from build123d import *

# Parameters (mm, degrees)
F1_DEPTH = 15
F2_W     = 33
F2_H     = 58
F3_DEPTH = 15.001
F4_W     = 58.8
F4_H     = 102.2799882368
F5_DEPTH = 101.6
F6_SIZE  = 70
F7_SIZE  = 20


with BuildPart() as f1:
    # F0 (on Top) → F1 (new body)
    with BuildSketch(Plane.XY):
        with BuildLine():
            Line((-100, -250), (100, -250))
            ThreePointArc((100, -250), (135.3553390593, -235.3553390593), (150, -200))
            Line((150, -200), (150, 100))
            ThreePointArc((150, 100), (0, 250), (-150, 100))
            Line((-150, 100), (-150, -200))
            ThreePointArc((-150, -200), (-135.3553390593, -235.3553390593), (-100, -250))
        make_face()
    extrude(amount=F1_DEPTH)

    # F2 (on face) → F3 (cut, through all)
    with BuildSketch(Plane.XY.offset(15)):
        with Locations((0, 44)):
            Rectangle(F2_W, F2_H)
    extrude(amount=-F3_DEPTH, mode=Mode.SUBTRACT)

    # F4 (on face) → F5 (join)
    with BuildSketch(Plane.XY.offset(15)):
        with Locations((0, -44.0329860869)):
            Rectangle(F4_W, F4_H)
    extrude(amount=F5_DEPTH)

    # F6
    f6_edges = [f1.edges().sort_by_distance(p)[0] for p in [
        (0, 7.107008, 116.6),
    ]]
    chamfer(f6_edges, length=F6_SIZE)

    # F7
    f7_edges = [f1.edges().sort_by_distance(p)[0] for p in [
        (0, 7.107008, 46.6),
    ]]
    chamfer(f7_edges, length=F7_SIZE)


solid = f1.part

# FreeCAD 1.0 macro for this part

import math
import FreeCAD as App
import Part
import Sketcher

V = App.Vector
Q = App.Units.Quantity


def edges_at(feature, points):
    """Names of the edges that pass closest to the given points."""
    edges = feature.Shape.Edges
    near = lambda p: min(range(len(edges)), key=lambda i: edges[i].distToShape(Part.Vertex(*p))[0])
    return sorted({f"Edge{near(p) + 1}" for p in points})

doc = App.newDocument("Part")
body = doc.addObject("PartDesign::Body", "Body")

# Sketch on XY plane
sketch1 = doc.addObject("Sketcher::SketchObject", "Sketch")
body.addObject(sketch1)
sketch1.AttachmentSupport = (doc.XY_Plane, [""])
sketch1.MapMode = "FlatFace"
sketch1.addGeometry(Part.LineSegment(V(-100, -250, 0), V(100, -250, 0)), False)
sketch1.addGeometry(Part.ArcOfCircle(Part.Circle(V(100, -200, 0), V(0, 0, 1), 50), math.radians(-90), math.radians(0)), False)
sketch1.addGeometry(Part.LineSegment(V(150, -200, 0), V(150, 100, 0)), False)
sketch1.addGeometry(Part.ArcOfCircle(Part.Circle(V(0, 100, 0), V(0, 0, 1), 150), math.radians(0), math.radians(180)), False)
sketch1.addGeometry(Part.LineSegment(V(-150, 100, 0), V(-150, -200, 0)), False)
sketch1.addGeometry(Part.ArcOfCircle(Part.Circle(V(-100, -200, 0), V(0, 0, 1), 50), math.radians(180), math.radians(270)), False)
sketch1.addConstraint(Sketcher.Constraint("Tangent", 0, 2, 1, 1))
sketch1.addConstraint(Sketcher.Constraint("Tangent", 1, 2, 2, 1))
sketch1.addConstraint(Sketcher.Constraint("Tangent", 2, 2, 3, 1))
sketch1.addConstraint(Sketcher.Constraint("Tangent", 3, 2, 4, 1))
sketch1.addConstraint(Sketcher.Constraint("Tangent", 4, 2, 5, 1))
sketch1.addConstraint(Sketcher.Constraint("Tangent", 5, 2, 0, 1))
sketch1.addConstraint(Sketcher.Constraint("Horizontal", 0))
sketch1.addConstraint(Sketcher.Constraint("Vertical", 2))
sketch1.addConstraint(Sketcher.Constraint("Vertical", 4))
sketch1.addConstraint(Sketcher.Constraint("Equal", 1, 5))
sketch1.addConstraint(Sketcher.Constraint("PointOnObject", 3, 3, -2))
sketch1.addConstraint(Sketcher.Constraint("Radius", 1, Q("50 mm")))
sketch1.addConstraint(Sketcher.Constraint("Radius", 3, Q("150 mm")))
sketch1.addConstraint(Sketcher.Constraint("DistanceY", 2, 1, 2, 2, Q("300 mm")))
sketch1.addConstraint(Sketcher.Constraint("DistanceY", 1, 3, -1, 1, Q("200 mm")))
pad1 = doc.addObject("PartDesign::Pad", "Pad")
body.addObject(pad1)
pad1.Profile = sketch1
pad1.Length = 15

# Sketch on XY plane
sketch2 = doc.addObject("Sketcher::SketchObject", "Sketch001")
body.addObject(sketch2)
sketch2.AttachmentSupport = (doc.XY_Plane, [""])
sketch2.MapMode = "FlatFace"
sketch2.AttachmentOffset = App.Placement(V(0, 0, 15), App.Rotation())
sketch2.addGeometry(Part.LineSegment(V(-16, 73, 0), V(-16, 15, 0)), False)
sketch2.addGeometry(Part.LineSegment(V(-16, 15, 0), V(16, 15, 0)), False)
sketch2.addGeometry(Part.LineSegment(V(16, 15, 0), V(16, 73, 0)), False)
sketch2.addGeometry(Part.LineSegment(V(16, 73, 0), V(-16, 73, 0)), False)
sketch2.addConstraint(Sketcher.Constraint("Coincident", 0, 2, 1, 1))
sketch2.addConstraint(Sketcher.Constraint("Coincident", 1, 2, 2, 1))
sketch2.addConstraint(Sketcher.Constraint("Coincident", 2, 2, 3, 1))
sketch2.addConstraint(Sketcher.Constraint("Coincident", 3, 2, 0, 1))
sketch2.addConstraint(Sketcher.Constraint("Vertical", 0))
sketch2.addConstraint(Sketcher.Constraint("Horizontal", 1))
sketch2.addConstraint(Sketcher.Constraint("Vertical", 2))
sketch2.addConstraint(Sketcher.Constraint("Horizontal", 3))
sketch2.addConstraint(Sketcher.Constraint("DistanceX", 1, 1, 1, 2, Q("33 mm")))
sketch2.addConstraint(Sketcher.Constraint("DistanceY", 0, 2, 0, 1, Q("58 mm")))
sketch2.addConstraint(Sketcher.Constraint("DistanceY", -1, 1, 0, 2, Q("15 mm")))
sketch2.addConstraint(Sketcher.Constraint("DistanceX", 0, 2, -1, 1, Q("16.5 mm")))
pocket1 = doc.addObject("PartDesign::Pocket", "Pocket")
body.addObject(pocket1)
pocket1.Profile = sketch2
pocket1.Type = "ThroughAll"

# Sketch on XY plane
sketch3 = doc.addObject("Sketcher::SketchObject", "Sketch002")
body.addObject(sketch3)
sketch3.AttachmentSupport = (doc.XY_Plane, [""])
sketch3.MapMode = "FlatFace"
sketch3.AttachmentOffset = App.Placement(V(0, 0, 15), App.Rotation())
sketch3.addGeometry(Part.LineSegment(V(-29, 7, 0), V(-29, -95, 0)), False)
sketch3.addGeometry(Part.LineSegment(V(-29, -95, 0), V(29, -95, 0)), False)
sketch3.addGeometry(Part.LineSegment(V(29, -95, 0), V(29, 7, 0)), False)
sketch3.addGeometry(Part.LineSegment(V(29, 7, 0), V(-29, 7, 0)), False)
sketch3.addConstraint(Sketcher.Constraint("Coincident", 0, 2, 1, 1))
sketch3.addConstraint(Sketcher.Constraint("Coincident", 1, 2, 2, 1))
sketch3.addConstraint(Sketcher.Constraint("Coincident", 2, 2, 3, 1))
sketch3.addConstraint(Sketcher.Constraint("Coincident", 3, 2, 0, 1))
sketch3.addConstraint(Sketcher.Constraint("Vertical", 0))
sketch3.addConstraint(Sketcher.Constraint("Horizontal", 1))
sketch3.addConstraint(Sketcher.Constraint("Vertical", 2))
sketch3.addConstraint(Sketcher.Constraint("Horizontal", 3))
sketch3.addConstraint(Sketcher.Constraint("DistanceX", 1, 1, 1, 2, Q("58.8 mm")))
sketch3.addConstraint(Sketcher.Constraint("DistanceX", 0, 2, -1, 1, Q("29.4 mm")))
sketch3.addConstraint(Sketcher.Constraint("DistanceY", 0, 2, 0, 1, Q("102.279988 mm")))
sketch3.addConstraint(Sketcher.Constraint("DistanceY", 0, 2, -1, 1, Q("95.17298 mm")))
pad2 = doc.addObject("PartDesign::Pad", "Pad001")
body.addObject(pad2)
pad2.Profile = sketch3
pad2.Length = 101.6
doc.recompute()

chamfer = doc.addObject("PartDesign::Chamfer", "Chamfer")
body.addObject(chamfer)
chamfer.Base = (pad2, edges_at(pad2, [(0, 7.107, 116.6)]))
chamfer.Size = 70
doc.recompute()

chamfer2 = doc.addObject("PartDesign::Chamfer", "Chamfer001")
body.addObject(chamfer2)
chamfer2.Base = (chamfer, edges_at(chamfer, [(0, 7.107, 46.6)]))
chamfer2.Size = 20

doc.recompute()
